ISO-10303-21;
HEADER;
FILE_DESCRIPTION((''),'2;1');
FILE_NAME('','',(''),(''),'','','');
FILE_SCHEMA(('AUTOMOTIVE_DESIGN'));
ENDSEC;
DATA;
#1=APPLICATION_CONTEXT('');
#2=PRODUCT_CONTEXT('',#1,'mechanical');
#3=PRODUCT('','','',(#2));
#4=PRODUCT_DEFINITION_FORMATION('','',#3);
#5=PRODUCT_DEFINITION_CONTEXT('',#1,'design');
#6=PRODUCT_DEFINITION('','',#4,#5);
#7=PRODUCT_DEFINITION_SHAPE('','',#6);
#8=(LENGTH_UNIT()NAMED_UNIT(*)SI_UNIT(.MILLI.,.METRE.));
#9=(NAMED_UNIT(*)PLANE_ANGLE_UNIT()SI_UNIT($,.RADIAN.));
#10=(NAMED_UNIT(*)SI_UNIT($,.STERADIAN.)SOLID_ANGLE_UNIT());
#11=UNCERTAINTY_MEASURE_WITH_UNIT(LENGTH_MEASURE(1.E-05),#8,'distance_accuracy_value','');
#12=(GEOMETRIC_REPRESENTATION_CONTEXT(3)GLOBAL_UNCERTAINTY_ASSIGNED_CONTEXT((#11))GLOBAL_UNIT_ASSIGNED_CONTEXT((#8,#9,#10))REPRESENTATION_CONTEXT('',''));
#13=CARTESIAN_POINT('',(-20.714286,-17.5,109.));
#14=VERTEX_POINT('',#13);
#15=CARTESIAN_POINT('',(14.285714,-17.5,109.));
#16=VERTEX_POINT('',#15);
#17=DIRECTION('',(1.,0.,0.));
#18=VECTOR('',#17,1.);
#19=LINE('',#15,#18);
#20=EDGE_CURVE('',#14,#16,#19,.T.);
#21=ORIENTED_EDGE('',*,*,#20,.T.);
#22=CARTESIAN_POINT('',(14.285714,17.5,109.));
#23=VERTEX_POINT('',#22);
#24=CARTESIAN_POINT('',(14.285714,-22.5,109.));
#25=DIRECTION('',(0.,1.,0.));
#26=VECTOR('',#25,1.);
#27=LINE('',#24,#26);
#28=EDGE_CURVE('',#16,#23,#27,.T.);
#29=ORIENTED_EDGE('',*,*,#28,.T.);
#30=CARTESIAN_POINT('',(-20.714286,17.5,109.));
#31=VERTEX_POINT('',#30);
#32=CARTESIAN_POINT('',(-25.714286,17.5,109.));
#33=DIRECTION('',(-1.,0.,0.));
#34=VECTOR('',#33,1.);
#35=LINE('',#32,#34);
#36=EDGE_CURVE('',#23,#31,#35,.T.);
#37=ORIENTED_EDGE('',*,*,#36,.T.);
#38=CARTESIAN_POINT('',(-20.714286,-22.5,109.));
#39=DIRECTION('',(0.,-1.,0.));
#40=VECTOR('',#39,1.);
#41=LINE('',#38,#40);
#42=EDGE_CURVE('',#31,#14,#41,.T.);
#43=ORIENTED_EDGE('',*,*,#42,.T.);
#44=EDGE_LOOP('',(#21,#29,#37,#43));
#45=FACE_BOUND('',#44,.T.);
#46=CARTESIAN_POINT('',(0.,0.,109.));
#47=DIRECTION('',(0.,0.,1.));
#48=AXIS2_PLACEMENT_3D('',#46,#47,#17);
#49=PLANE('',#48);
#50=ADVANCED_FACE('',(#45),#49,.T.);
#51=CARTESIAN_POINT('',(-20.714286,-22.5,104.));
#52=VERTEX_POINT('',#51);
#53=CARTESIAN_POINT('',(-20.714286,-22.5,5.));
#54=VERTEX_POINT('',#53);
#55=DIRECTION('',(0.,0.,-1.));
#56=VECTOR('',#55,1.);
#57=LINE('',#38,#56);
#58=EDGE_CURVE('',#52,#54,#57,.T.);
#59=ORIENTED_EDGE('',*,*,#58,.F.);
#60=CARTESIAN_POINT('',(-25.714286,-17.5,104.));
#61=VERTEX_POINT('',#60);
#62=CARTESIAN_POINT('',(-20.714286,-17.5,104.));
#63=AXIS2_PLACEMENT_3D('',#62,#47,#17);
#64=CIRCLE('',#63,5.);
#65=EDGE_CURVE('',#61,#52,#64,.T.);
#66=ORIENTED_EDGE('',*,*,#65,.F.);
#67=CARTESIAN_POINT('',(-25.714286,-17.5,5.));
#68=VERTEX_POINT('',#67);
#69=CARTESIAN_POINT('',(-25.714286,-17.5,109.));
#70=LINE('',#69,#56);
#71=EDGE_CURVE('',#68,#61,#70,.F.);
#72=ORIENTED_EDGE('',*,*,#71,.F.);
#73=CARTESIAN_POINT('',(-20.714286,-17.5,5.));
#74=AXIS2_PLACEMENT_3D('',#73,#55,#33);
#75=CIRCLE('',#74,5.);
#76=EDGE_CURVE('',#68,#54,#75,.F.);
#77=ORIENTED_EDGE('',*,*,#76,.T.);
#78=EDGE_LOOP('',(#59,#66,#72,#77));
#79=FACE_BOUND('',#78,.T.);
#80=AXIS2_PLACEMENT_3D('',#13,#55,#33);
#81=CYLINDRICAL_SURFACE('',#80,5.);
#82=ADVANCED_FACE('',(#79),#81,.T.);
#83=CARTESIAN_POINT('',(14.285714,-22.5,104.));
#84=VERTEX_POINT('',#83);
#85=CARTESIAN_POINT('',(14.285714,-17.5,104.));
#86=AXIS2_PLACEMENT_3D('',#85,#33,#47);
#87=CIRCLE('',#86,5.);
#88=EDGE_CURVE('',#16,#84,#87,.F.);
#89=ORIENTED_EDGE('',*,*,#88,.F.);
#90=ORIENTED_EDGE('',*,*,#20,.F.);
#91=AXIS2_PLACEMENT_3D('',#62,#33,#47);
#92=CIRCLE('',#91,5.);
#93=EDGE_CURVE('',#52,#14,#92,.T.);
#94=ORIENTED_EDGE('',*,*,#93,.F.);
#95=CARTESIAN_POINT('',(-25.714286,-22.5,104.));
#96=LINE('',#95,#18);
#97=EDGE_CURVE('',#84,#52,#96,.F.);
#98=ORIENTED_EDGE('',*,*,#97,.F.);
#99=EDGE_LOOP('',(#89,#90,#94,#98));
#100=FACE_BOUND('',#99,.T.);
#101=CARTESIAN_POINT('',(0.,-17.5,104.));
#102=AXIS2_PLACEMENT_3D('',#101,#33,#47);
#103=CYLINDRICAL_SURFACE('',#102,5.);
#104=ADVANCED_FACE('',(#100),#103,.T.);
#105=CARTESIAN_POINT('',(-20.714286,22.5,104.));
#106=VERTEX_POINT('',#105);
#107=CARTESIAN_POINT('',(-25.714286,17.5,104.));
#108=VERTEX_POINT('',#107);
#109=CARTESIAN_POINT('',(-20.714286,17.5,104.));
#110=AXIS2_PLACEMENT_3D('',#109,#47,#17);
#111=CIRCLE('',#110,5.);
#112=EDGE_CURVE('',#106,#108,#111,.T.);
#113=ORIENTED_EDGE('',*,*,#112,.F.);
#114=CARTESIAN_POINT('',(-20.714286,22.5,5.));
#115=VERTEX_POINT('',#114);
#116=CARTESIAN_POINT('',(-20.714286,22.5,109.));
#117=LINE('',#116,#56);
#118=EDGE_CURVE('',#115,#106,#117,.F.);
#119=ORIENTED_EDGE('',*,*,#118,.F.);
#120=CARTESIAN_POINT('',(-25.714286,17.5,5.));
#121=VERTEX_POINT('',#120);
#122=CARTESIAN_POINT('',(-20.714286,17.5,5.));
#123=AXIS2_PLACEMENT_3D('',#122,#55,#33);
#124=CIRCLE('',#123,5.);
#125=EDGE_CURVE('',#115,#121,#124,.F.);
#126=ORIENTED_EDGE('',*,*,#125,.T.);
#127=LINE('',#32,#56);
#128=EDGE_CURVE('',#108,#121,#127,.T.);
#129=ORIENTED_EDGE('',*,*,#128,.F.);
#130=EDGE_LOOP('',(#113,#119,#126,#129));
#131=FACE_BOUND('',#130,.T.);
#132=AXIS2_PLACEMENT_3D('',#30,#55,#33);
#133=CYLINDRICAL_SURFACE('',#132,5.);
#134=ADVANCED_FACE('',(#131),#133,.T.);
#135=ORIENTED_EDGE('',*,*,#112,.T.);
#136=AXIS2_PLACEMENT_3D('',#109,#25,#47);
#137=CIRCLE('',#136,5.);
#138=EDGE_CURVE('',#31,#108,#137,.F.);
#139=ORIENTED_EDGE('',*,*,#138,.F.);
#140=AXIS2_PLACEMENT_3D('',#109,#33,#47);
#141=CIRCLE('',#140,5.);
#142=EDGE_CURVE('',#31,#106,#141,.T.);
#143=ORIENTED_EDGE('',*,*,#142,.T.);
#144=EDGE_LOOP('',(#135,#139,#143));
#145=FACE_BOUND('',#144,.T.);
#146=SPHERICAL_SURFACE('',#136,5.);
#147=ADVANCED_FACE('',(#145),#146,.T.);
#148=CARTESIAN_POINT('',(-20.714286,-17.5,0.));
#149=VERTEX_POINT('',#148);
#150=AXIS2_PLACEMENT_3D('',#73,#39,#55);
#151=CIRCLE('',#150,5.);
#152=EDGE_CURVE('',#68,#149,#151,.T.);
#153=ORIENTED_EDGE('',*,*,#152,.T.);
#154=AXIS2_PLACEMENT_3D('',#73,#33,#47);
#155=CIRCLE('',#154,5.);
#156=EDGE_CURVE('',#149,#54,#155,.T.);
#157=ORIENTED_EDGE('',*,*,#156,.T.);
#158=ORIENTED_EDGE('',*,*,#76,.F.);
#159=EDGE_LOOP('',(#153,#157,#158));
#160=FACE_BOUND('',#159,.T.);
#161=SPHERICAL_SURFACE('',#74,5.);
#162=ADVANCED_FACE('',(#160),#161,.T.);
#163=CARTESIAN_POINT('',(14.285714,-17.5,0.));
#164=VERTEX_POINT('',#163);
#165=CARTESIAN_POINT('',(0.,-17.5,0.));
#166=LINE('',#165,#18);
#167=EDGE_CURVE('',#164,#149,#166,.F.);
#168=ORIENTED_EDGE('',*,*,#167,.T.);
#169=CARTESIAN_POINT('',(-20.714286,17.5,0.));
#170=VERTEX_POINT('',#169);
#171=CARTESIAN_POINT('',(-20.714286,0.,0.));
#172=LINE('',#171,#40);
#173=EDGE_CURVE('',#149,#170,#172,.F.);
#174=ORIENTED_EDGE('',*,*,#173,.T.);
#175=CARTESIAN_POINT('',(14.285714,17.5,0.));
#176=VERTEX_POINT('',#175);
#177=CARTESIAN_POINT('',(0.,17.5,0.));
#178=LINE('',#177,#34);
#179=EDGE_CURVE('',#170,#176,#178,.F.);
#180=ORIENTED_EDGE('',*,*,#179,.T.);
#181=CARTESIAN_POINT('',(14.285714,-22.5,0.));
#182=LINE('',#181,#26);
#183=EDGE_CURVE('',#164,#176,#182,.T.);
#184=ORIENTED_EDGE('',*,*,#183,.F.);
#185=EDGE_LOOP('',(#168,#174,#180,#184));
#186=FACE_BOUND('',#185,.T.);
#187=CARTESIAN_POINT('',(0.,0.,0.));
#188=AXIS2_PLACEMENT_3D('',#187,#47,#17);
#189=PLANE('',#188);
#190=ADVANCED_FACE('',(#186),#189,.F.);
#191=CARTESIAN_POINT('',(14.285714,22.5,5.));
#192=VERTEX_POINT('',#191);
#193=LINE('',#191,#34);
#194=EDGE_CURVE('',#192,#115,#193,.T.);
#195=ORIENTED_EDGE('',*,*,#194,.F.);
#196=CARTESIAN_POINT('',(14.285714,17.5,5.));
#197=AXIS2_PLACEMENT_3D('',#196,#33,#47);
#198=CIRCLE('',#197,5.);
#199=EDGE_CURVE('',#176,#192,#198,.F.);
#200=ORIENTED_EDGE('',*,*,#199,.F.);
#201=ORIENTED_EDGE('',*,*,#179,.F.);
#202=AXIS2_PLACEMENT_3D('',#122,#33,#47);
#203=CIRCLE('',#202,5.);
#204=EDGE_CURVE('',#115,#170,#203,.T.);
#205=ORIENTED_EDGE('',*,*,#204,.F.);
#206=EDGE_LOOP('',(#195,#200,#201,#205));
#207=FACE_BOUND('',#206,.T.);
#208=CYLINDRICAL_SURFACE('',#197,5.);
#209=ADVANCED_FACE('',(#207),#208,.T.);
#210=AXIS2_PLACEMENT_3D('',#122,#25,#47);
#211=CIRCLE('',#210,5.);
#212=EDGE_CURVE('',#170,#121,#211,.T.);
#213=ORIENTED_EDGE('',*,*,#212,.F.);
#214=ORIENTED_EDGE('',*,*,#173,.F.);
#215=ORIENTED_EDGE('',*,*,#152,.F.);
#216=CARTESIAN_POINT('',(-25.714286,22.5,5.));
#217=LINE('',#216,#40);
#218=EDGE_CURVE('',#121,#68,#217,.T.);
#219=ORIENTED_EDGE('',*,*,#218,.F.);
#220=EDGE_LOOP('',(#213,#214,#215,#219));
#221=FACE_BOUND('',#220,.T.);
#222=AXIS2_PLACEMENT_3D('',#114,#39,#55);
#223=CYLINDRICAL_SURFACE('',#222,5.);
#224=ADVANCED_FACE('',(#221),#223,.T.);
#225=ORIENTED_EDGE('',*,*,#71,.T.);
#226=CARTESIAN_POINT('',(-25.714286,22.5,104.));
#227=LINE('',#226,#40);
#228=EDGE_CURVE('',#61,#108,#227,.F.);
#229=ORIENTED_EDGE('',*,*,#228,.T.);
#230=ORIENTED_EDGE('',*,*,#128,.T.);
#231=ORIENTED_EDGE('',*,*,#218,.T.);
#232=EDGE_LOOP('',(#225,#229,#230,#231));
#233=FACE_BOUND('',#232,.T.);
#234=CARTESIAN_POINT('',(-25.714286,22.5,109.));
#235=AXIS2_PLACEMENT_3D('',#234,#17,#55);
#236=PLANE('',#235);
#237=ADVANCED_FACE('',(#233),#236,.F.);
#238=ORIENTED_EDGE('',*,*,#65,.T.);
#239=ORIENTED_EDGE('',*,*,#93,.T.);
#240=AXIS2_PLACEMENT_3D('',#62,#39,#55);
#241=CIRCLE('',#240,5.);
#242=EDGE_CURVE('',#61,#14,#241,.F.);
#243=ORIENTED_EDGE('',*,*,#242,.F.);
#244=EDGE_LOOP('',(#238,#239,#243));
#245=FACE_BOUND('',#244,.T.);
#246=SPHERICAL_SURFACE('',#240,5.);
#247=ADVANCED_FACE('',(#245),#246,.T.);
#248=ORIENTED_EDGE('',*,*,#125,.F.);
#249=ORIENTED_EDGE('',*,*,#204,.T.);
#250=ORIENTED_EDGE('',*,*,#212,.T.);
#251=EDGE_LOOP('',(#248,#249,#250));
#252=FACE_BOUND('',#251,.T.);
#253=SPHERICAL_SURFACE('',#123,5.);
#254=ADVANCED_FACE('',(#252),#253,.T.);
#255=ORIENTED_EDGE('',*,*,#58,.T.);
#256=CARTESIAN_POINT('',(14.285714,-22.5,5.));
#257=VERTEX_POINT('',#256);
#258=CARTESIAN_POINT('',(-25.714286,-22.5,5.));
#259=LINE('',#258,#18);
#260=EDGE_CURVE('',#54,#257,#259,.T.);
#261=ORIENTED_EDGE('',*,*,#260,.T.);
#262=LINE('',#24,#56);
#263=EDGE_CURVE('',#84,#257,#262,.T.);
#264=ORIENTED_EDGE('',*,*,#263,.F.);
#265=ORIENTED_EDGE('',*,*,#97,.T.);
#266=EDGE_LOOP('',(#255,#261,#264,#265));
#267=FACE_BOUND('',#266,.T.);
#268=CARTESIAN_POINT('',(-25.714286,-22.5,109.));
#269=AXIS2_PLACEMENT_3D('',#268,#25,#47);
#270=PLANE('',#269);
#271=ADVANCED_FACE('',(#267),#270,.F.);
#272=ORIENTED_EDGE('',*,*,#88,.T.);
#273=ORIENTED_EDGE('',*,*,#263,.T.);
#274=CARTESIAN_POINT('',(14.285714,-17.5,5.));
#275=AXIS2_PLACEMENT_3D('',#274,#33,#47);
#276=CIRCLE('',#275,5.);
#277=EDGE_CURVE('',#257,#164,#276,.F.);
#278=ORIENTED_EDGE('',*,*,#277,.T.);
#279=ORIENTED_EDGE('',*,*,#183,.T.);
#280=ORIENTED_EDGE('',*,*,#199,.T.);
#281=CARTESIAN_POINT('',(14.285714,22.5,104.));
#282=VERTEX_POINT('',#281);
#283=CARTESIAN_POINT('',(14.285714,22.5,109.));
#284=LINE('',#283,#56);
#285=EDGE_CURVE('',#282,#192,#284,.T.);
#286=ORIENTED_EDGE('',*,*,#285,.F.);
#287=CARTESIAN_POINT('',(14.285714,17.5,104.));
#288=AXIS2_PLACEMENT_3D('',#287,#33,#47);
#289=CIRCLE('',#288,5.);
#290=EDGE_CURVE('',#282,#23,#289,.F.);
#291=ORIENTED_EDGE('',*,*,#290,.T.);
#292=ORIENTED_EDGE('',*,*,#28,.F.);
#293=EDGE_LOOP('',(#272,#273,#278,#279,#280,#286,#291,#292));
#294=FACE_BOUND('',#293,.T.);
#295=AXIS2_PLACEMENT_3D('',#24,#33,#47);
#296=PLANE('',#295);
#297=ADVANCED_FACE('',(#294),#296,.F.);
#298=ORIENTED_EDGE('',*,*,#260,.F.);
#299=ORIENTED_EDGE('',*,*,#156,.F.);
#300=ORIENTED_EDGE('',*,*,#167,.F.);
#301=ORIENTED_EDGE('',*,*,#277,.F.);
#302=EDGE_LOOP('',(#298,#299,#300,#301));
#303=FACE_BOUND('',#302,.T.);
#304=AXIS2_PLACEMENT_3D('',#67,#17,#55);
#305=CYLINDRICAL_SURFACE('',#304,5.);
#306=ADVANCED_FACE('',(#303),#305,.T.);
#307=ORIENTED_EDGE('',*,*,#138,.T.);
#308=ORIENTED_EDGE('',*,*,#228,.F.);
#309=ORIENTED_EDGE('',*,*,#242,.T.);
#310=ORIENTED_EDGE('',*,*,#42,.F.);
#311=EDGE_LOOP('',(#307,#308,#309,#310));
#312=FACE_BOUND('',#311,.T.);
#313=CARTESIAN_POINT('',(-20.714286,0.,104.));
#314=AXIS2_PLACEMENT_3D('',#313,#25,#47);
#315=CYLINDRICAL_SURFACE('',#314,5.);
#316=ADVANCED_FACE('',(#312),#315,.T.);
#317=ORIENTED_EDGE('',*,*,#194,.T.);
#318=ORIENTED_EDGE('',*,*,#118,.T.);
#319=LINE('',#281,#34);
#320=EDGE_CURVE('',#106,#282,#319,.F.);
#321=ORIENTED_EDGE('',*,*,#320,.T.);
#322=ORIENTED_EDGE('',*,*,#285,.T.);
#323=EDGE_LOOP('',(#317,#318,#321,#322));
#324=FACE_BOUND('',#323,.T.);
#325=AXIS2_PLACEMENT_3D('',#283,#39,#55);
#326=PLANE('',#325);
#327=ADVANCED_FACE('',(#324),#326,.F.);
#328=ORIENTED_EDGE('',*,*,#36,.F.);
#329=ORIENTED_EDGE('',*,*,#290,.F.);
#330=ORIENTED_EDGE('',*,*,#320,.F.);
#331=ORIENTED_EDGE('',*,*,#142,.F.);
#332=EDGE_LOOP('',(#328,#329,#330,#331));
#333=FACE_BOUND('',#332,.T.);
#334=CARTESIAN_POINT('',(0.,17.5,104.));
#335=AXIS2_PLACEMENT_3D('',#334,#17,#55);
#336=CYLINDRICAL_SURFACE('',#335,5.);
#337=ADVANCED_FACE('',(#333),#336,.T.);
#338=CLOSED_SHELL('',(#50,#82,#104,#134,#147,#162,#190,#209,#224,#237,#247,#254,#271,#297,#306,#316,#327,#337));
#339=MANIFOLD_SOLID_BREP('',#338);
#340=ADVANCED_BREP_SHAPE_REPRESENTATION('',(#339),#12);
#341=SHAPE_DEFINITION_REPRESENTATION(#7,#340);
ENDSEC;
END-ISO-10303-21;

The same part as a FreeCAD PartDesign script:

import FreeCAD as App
import Part
import Sketcher

V = App.Vector


def edges_at(feature, points):
    """Names of the edges that pass closest to the given points."""
    edges = feature.Shape.Edges
    near = lambda p: min(range(len(edges)), key=lambda i: edges[i].distToShape(Part.Vertex(*p))[0])
    return sorted({f"Edge{near(p) + 1}" for p in points})

doc = App.newDocument("Part")
body = doc.addObject("PartDesign::Body", "Body")

# Sketch on XY plane
sketch1 = body.newObject("Sketcher::SketchObject", "Sketch")
sketch1.AttachmentSupport = (doc.getObject("XY_Plane"), [""])
sketch1.MapMode = "FlatFace"
sketch1.addGeometry(Part.LineSegment(V(-26, 22, 0), V(-26, -22, 0)), False)
sketch1.addGeometry(Part.LineSegment(V(-26, -22, 0), V(14, -22, 0)), False)
sketch1.addGeometry(Part.LineSegment(V(14, -22, 0), V(14, 22, 0)), False)
sketch1.addGeometry(Part.LineSegment(V(14, 22, 0), V(-26, 22, 0)), False)
sketch1.addConstraint(Sketcher.Constraint("Coincident", 0, 2, 1, 1))
sketch1.addConstraint(Sketcher.Constraint("Coincident", 1, 2, 2, 1))
sketch1.addConstraint(Sketcher.Constraint("Coincident", 2, 2, 3, 1))
sketch1.addConstraint(Sketcher.Constraint("Coincident", 3, 2, 0, 1))
sketch1.addConstraint(Sketcher.Constraint("Vertical", 0))
sketch1.addConstraint(Sketcher.Constraint("Horizontal", 1))
sketch1.addConstraint(Sketcher.Constraint("Vertical", 2))
sketch1.addConstraint(Sketcher.Constraint("Horizontal", 3))
sketch1.addConstraint(Sketcher.Constraint("DistanceX", 1, 1, 1, 2, 40.0))
sketch1.addConstraint(Sketcher.Constraint("DistanceY", 0, 2, 0, 1, 45.0))
sketch1.addConstraint(Sketcher.Constraint("DistanceY", 0, 2, -1, 1, 22.5))
sketch1.addConstraint(Sketcher.Constraint("DistanceX", 0, 2, -1, 1, 25.714286))
pad1 = body.newObject("PartDesign::Pad", "Pad")
pad1.Profile = sketch1
pad1.Length = 109
doc.recompute()

fillet = body.newObject("PartDesign::Fillet", "Fillet")
fillet.Base = (pad1, edges_at(pad1, [
    (-5.714, 22.5, 109),
    (-25.714, 0, 109),
    (-5.714, 22.5, 0),
    (-5.714, -22.5, 0),
    (-25.714, 0, 0),
    (-25.714, 22.5, 54.5),
    (-25.714, -22.5, 54.5),
    (-5.714, -22.5, 109),
]))
fillet.Radius = 5

doc.recompute()
